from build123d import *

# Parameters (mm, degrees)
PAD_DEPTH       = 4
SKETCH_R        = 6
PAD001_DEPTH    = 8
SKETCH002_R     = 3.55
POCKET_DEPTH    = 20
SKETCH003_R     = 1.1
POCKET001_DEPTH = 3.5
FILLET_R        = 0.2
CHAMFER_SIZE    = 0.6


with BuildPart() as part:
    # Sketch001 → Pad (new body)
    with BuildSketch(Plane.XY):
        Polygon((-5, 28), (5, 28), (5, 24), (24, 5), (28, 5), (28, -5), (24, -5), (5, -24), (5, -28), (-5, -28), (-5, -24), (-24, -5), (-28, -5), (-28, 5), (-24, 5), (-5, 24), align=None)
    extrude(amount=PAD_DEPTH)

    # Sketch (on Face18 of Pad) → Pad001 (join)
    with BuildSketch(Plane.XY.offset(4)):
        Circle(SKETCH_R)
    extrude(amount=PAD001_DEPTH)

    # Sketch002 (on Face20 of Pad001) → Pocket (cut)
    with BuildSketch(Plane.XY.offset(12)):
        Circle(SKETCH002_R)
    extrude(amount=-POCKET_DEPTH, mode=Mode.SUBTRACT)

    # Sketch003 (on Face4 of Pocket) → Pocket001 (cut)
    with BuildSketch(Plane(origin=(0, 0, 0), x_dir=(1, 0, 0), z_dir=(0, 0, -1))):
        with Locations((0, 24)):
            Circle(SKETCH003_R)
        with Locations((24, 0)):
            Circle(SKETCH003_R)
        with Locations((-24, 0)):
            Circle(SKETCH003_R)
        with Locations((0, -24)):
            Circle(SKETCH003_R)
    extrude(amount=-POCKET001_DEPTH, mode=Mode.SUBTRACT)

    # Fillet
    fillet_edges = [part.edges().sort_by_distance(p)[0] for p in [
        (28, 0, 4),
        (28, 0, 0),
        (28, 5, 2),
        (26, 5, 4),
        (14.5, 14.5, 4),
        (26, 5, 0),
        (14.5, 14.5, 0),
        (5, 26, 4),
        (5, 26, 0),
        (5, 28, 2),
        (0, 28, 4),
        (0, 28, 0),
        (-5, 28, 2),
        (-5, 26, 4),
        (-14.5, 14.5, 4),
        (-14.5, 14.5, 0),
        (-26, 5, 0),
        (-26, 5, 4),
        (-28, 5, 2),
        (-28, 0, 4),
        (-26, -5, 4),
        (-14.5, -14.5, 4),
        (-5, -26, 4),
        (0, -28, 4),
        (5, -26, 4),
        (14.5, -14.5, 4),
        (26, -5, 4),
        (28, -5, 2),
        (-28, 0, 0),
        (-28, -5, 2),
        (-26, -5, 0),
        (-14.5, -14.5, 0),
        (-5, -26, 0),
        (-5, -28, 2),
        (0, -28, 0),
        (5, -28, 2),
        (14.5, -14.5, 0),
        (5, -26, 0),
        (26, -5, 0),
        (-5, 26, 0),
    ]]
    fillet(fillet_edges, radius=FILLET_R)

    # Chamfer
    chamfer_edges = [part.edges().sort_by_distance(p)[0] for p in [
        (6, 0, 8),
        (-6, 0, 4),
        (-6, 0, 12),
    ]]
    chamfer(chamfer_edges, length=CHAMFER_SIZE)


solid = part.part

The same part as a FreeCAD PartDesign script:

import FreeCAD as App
import Part
import Sketcher
Q = App.Units.Quantity


def edges_at(feature, points):
    """Names of the edges that pass closest to the given points."""
    edges = feature.Shape.Edges
    near = lambda p: min(range(len(edges)), key=lambda i: edges[i].distToShape(Part.Vertex(*p))[0])
    return sorted({f"Edge{near(p) + 1}" for p in points})


def add_polygon(sketch, points):
    """Adds a closed chain of lines whose ends are joined by coincident constraints."""
    first, n = sketch.GeometryCount, len(points)
    for a, b in zip(points, points[1:] + points[:1]):
        sketch.addGeometry(Part.LineSegment(App.Vector(*a, 0), App.Vector(*b, 0)), False)
    for i in range(n):
        sketch.addConstraint(Sketcher.Constraint("Coincident", first + i, 2, first + (i + 1) % n, 1))

doc = App.newDocument("Part")
body = doc.addObject("PartDesign::Body", "Body")

# Sketch on XY plane
sketch1 = body.newObject("Sketcher::SketchObject", "Sketch")
sketch1.AttachmentSupport = (doc.getObject("XY_Plane"), [""])
sketch1.MapMode = "FlatFace"
add_polygon(sketch1, [(5, 28), (-5, 28), (-5, 24), (-24, 5), (-28, 5), (-28, -5), (-24, -5), (-5, -24), (-5, -28), (5, -28), (5, -24), (24, -5), (28, -5), (28, 5), (24, 5), (5, 24)])  # lines 0-15
sketch1.addConstraint([
    Sketcher.Constraint("Horizontal", 0),
    Sketcher.Constraint("Vertical", 1),
    Sketcher.Constraint("Horizontal", 3),
    Sketcher.Constraint("Vertical", 4),
    Sketcher.Constraint("Horizontal", 5),
    Sketcher.Constraint("Vertical", 7),
    Sketcher.Constraint("Horizontal", 8),
    Sketcher.Constraint("Vertical", 9),
    Sketcher.Constraint("Horizontal", 11),
    Sketcher.Constraint("Vertical", 12),
    Sketcher.Constraint("Horizontal", 13),
    Sketcher.Constraint("Vertical", 15),
    Sketcher.Constraint("Symmetric", 0, 2, 8, 2, -1, 1),
    Sketcher.Constraint("Symmetric", 2, 2, 10, 2, -1, 1),
    Sketcher.Constraint("Symmetric", 4, 2, 12, 2, -1, 1),
    Sketcher.Constraint("Symmetric", 6, 2, 14, 2, -1, 1),
    Sketcher.Constraint("Symmetric", 6, 2, 9, 2, -2),
    Sketcher.Constraint("Symmetric", 5, 2, 10, 2, -2),
    Sketcher.Constraint("Perpendicular", 2, 6),
    Sketcher.Constraint("Perpendicular", 6, 10),
    Sketcher.Constraint("Perpendicular", 10, 14),
    Sketcher.Constraint("Equal", 13, 1),
    Sketcher.Constraint("Equal", 8, 4),
    Sketcher.Constraint("DistanceX", 0, 2, 0, 1, Q("10 mm")),
    Sketcher.Constraint("DistanceX", 3, 2, 3, 1, Q("4 mm")),
    Sketcher.Constraint("DistanceY", -1, 1, 0, 2, Q("28 mm")),
])
pad1 = body.newObject("PartDesign::Pad", "Pad")
pad1.Profile = sketch1
pad1.Length = 4

# Sketch on XY plane
sketch2 = body.newObject("Sketcher::SketchObject", "Sketch001")
sketch2.AttachmentSupport = (doc.getObject("XY_Plane"), [""])
sketch2.MapMode = "FlatFace"
sketch2.AttachmentOffset = App.Placement(App.Vector(0, 0, 4), App.Rotation())
sketch2.addGeometry(Part.Circle(App.Vector(0, 0, 0), App.Vector(0, 0, 1), 6), False)
sketch2.addConstraint([
    Sketcher.Constraint("Coincident", 0, 3, -1, 1),
    Sketcher.Constraint("Diameter", 0, Q("12 mm")),
])
pad2 = body.newObject("PartDesign::Pad", "Pad001")
pad2.Profile = sketch2
pad2.Length = 8

# Sketch on XY plane
sketch3 = body.newObject("Sketcher::SketchObject", "Sketch002")
sketch3.AttachmentSupport = (doc.getObject("XY_Plane"), [""])
sketch3.MapMode = "FlatFace"
sketch3.AttachmentOffset = App.Placement(App.Vector(0, 0, 12), App.Rotation())
sketch3.addGeometry(Part.Circle(App.Vector(0, 0, 0), App.Vector(0, 0, 1), 3.5), False)
sketch3.addConstraint([
    Sketcher.Constraint("Coincident", 0, 3, -1, 1),
    Sketcher.Constraint("Diameter", 0, Q("7.1 mm")),
])
pocket1 = body.newObject("PartDesign::Pocket", "Pocket")
pocket1.Profile = sketch3
pocket1.Length = 20

# Sketch on XY plane
sketch4 = body.newObject("Sketcher::SketchObject", "Sketch003")
sketch4.AttachmentSupport = (doc.getObject("XY_Plane"), [""])
sketch4.MapMode = "FlatFace"
sketch4.addGeometry([
    Part.Circle(App.Vector(0, -24, 0), App.Vector(0, 0, 1), 1.1),
    Part.Circle(App.Vector(24, 0, 0), App.Vector(0, 0, 1), 1.1),
    Part.Circle(App.Vector(-24, 0, 0), App.Vector(0, 0, 1), 1.1),
    Part.Circle(App.Vector(0, 24, 0), App.Vector(0, 0, 1), 1.1),
], False)
sketch4.addConstraint([
    Sketcher.Constraint("Equal", 0, 1),
    Sketcher.Constraint("Equal", 1, 2),
    Sketcher.Constraint("Equal", 2, 3),
    Sketcher.Constraint("Symmetric", 1, 3, 2, 3, -1, 1),
    Sketcher.Constraint("Symmetric", 0, 3, 3, 3, -1, 1),
    Sketcher.Constraint("PointOnObject", 0, 3, -2),
    Sketcher.Constraint("PointOnObject", 1, 3, -1),
    Sketcher.Constraint("Diameter", 0, Q("2.2 mm")),
    Sketcher.Constraint("DistanceY", 0, 3, -1, 1, Q("24 mm")),
    Sketcher.Constraint("DistanceX", -1, 1, 1, 3, Q("24 mm")),
])
pocket2 = body.newObject("PartDesign::Pocket", "Pocket001")
pocket2.Profile = sketch4
pocket2.Length = 3.5
pocket2.Reversed = True
doc.recompute()

fillet = body.newObject("PartDesign::Fillet", "Fillet")
fillet.Base = (pocket2, edges_at(pocket2, [
    (28, 0, 4),
    (28, 0, 0),
    (28, 5, 2),
    (26, 5, 4),
    (14.5, 14.5, 4),
    (26, 5, 0),
    (14.5, 14.5, 0),
    (5, 26, 4),
    (5, 26, 0),
    (5, 28, 2),
    (0, 28, 4),
    (0, 28, 0),
    (-5, 28, 2),
    (-5, 26, 4),
    (-14.5, 14.5, 4),
    (-14.5, 14.5, 0),
    (-26, 5, 0),
    (-26, 5, 4),
    (-28, 5, 2),
    (-28, 0, 4),
    (-26, -5, 4),
    (-14.5, -14.5, 4),
    (-5, -26, 4),
    (0, -28, 4),
    (5, -26, 4),
    (14.5, -14.5, 4),
    (26, -5, 4),
    (28, -5, 2),
    (-28, 0, 0),
    (-28, -5, 2),
    (-26, -5, 0),
    (-14.5, -14.5, 0),
    (-5, -26, 0),
    (-5, -28, 2),
    (0, -28, 0),
    (5, -28, 2),
    (14.5, -14.5, 0),
    (5, -26, 0),
    (26, -5, 0),
    (-5, 26, 0),
]))
fillet.Radius = 0.2
doc.recompute()

chamfer = body.newObject("PartDesign::Chamfer", "Chamfer")
chamfer.Base = (fillet, edges_at(fillet, [(6, 0, 8), (-6, 0, 4), (-6, 0, 12)]))
chamfer.Size = 0.6

doc.recompute()
